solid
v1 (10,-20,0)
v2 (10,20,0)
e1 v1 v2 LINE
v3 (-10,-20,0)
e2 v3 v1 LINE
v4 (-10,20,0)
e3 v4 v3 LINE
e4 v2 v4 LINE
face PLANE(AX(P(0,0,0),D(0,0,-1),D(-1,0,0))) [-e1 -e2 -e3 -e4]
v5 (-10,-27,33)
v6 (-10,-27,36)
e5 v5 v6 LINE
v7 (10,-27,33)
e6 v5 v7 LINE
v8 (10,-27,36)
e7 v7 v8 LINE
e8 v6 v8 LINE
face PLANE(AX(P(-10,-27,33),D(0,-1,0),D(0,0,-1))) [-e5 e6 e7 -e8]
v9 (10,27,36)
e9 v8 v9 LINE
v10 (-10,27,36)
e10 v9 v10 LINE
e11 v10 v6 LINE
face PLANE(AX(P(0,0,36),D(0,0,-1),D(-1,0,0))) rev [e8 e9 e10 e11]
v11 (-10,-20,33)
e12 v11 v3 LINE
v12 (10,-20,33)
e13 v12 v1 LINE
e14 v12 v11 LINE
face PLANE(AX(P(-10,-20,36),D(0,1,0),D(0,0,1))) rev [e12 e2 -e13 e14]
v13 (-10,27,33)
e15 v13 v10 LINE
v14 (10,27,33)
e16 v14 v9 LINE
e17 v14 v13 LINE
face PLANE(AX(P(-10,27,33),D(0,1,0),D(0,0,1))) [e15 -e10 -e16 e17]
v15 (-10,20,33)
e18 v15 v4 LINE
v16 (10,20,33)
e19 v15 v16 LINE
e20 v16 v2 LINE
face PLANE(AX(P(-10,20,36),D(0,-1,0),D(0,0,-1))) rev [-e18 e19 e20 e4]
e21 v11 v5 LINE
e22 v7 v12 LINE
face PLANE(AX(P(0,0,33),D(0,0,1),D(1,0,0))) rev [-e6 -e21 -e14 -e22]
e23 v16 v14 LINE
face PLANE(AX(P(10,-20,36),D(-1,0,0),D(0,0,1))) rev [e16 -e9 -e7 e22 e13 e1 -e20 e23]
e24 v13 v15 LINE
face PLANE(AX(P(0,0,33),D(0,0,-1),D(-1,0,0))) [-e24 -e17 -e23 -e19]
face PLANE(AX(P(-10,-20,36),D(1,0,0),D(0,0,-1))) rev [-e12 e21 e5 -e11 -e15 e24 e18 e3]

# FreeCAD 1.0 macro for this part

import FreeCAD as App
import Part
import Sketcher

doc = App.newDocument("Part")
params = doc.addObject("Spreadsheet::Sheet", "Params")
for row, (alias, value) in enumerate([
    ("sketch1_width", "20 mm"),
    ("sketch1_height", "40 mm"),
    ("pad1_length", "36 mm"),
    ("sketch2_width", "20 mm"),
    ("sketch2_height", "7 mm"),
    ("pad2_length", "3 mm"),
], start=1):
    params.set(f"A{row}", alias)
    params.set(f"B{row}", "=" + value)
    params.setAlias(f"B{row}", alias)

body = doc.addObject("PartDesign::Body", "Body")

sketch1 = body.newObject("Sketcher::SketchObject", "Sketch")
sketch1.AttachmentSupport = (doc.getObject("XY_Plane"), [""])
sketch1.MapMode = "FlatFace"
sketch1.addGeometry(Part.LineSegment(App.Vector(-10, 20, 0), App.Vector(-10, -20, 0)), False)
sketch1.addGeometry(Part.LineSegment(App.Vector(-10, -20, 0), App.Vector(10, -20, 0)), False)
sketch1.addGeometry(Part.LineSegment(App.Vector(10, -20, 0), App.Vector(10, 20, 0)), False)
sketch1.addGeometry(Part.LineSegment(App.Vector(10, 20, 0), App.Vector(-10, 20, 0)), False)
sketch1.addConstraint(Sketcher.Constraint("Coincident", 0, 2, 1, 1))
sketch1.addConstraint(Sketcher.Constraint("Coincident", 1, 2, 2, 1))
sketch1.addConstraint(Sketcher.Constraint("Coincident", 2, 2, 3, 1))
sketch1.addConstraint(Sketcher.Constraint("Coincident", 3, 2, 0, 1))
sketch1.addConstraint(Sketcher.Constraint("Vertical", 0))
sketch1.addConstraint(Sketcher.Constraint("Horizontal", 1))
sketch1.addConstraint(Sketcher.Constraint("Vertical", 2))
sketch1.addConstraint(Sketcher.Constraint("Horizontal", 3))
sketch1.addConstraint(Sketcher.Constraint("Symmetric", 0, 2, 2, 2, -1, 1))
sketch1.addConstraint(Sketcher.Constraint("DistanceX", 1, 1, 1, 2, 20.0))
sketch1.addConstraint(Sketcher.Constraint("DistanceY", 0, 2, 0, 1, 40.0))
sketch1.setExpression("Constraints[9]", "Params.sketch1_width")
sketch1.setExpression("Constraints[10]", "Params.sketch1_height")
pad1 = body.newObject("PartDesign::Pad", "Pad")
pad1.Profile = sketch1
pad1.setExpression("Length", "Params.pad1_length")

sketch2 = body.newObject("Sketcher::SketchObject", "Sketch001")
sketch2.AttachmentSupport = (doc.getObject("XY_Plane"), [""])
sketch2.MapMode = "FlatFace"
sketch2.AttachmentOffset = App.Placement(App.Vector(0, 0, 36), App.Rotation())
sketch2.addGeometry(Part.LineSegment(App.Vector(-10, 27, 0), App.Vector(-10, 20, 0)), False)
sketch2.addGeometry(Part.LineSegment(App.Vector(-10, 20, 0), App.Vector(10, 20, 0)), False)
sketch2.addGeometry(Part.LineSegment(App.Vector(10, 20, 0), App.Vector(10, 27, 0)), False)
sketch2.addGeometry(Part.LineSegment(App.Vector(10, 27, 0), App.Vector(-10, 27, 0)), False)
sketch2.addGeometry(Part.LineSegment(App.Vector(-10, -20, 0), App.Vector(-10, -27, 0)), False)
sketch2.addGeometry(Part.LineSegment(App.Vector(-10, -27, 0), App.Vector(10, -27, 0)), False)
sketch2.addGeometry(Part.LineSegment(App.Vector(10, -27, 0), App.Vector(10, -20, 0)), False)
sketch2.addGeometry(Part.LineSegment(App.Vector(10, -20, 0), App.Vector(-10, -20, 0)), False)
sketch2.addConstraint(Sketcher.Constraint("Coincident", 0, 2, 1, 1))
sketch2.addConstraint(Sketcher.Constraint("Coincident", 1, 2, 2, 1))
sketch2.addConstraint(Sketcher.Constraint("Coincident", 2, 2, 3, 1))
sketch2.addConstraint(Sketcher.Constraint("Coincident", 3, 2, 0, 1))
sketch2.addConstraint(Sketcher.Constraint("Coincident", 4, 2, 5, 1))
sketch2.addConstraint(Sketcher.Constraint("Coincident", 5, 2, 6, 1))
sketch2.addConstraint(Sketcher.Constraint("Coincident", 6, 2, 7, 1))
sketch2.addConstraint(Sketcher.Constraint("Coincident", 7, 2, 4, 1))
sketch2.addConstraint(Sketcher.Constraint("Vertical", 0))
sketch2.addConstraint(Sketcher.Constraint("Horizontal", 1))
sketch2.addConstraint(Sketcher.Constraint("Vertical", 2))
sketch2.addConstraint(Sketcher.Constraint("Horizontal", 3))
sketch2.addConstraint(Sketcher.Constraint("Vertical", 4))
sketch2.addConstraint(Sketcher.Constraint("Horizontal", 5))
sketch2.addConstraint(Sketcher.Constraint("Vertical", 6))
sketch2.addConstraint(Sketcher.Constraint("Horizontal", 7))
sketch2.addConstraint(Sketcher.Constraint("Symmetric", 2, 2, 4, 2, -1, 1))
sketch2.addConstraint(Sketcher.Constraint("Symmetric", 0, 2, 6, 2, -1, 1))
sketch2.addConstraint(Sketcher.Constraint("Vertical", 3, 2, 4, 2))
sketch2.addConstraint(Sketcher.Constraint("DistanceX", 1, 1, 1, 2, 20.0))
sketch2.addConstraint(Sketcher.Constraint("DistanceY", 0, 2, 0, 1, 7.0))
sketch2.addConstraint(Sketcher.Constraint("DistanceY", -1, 1, 0, 2, 20.0))
sketch2.setExpression("Constraints[19]", "Params.sketch2_width")
sketch2.setExpression("Constraints[20]", "Params.sketch2_height")
pad2 = body.newObject("PartDesign::Pad", "Pad001")
pad2.Profile = sketch2
pad2.setExpression("Length", "Params.pad2_length")
pad2.Reversed = True

doc.recompute()
